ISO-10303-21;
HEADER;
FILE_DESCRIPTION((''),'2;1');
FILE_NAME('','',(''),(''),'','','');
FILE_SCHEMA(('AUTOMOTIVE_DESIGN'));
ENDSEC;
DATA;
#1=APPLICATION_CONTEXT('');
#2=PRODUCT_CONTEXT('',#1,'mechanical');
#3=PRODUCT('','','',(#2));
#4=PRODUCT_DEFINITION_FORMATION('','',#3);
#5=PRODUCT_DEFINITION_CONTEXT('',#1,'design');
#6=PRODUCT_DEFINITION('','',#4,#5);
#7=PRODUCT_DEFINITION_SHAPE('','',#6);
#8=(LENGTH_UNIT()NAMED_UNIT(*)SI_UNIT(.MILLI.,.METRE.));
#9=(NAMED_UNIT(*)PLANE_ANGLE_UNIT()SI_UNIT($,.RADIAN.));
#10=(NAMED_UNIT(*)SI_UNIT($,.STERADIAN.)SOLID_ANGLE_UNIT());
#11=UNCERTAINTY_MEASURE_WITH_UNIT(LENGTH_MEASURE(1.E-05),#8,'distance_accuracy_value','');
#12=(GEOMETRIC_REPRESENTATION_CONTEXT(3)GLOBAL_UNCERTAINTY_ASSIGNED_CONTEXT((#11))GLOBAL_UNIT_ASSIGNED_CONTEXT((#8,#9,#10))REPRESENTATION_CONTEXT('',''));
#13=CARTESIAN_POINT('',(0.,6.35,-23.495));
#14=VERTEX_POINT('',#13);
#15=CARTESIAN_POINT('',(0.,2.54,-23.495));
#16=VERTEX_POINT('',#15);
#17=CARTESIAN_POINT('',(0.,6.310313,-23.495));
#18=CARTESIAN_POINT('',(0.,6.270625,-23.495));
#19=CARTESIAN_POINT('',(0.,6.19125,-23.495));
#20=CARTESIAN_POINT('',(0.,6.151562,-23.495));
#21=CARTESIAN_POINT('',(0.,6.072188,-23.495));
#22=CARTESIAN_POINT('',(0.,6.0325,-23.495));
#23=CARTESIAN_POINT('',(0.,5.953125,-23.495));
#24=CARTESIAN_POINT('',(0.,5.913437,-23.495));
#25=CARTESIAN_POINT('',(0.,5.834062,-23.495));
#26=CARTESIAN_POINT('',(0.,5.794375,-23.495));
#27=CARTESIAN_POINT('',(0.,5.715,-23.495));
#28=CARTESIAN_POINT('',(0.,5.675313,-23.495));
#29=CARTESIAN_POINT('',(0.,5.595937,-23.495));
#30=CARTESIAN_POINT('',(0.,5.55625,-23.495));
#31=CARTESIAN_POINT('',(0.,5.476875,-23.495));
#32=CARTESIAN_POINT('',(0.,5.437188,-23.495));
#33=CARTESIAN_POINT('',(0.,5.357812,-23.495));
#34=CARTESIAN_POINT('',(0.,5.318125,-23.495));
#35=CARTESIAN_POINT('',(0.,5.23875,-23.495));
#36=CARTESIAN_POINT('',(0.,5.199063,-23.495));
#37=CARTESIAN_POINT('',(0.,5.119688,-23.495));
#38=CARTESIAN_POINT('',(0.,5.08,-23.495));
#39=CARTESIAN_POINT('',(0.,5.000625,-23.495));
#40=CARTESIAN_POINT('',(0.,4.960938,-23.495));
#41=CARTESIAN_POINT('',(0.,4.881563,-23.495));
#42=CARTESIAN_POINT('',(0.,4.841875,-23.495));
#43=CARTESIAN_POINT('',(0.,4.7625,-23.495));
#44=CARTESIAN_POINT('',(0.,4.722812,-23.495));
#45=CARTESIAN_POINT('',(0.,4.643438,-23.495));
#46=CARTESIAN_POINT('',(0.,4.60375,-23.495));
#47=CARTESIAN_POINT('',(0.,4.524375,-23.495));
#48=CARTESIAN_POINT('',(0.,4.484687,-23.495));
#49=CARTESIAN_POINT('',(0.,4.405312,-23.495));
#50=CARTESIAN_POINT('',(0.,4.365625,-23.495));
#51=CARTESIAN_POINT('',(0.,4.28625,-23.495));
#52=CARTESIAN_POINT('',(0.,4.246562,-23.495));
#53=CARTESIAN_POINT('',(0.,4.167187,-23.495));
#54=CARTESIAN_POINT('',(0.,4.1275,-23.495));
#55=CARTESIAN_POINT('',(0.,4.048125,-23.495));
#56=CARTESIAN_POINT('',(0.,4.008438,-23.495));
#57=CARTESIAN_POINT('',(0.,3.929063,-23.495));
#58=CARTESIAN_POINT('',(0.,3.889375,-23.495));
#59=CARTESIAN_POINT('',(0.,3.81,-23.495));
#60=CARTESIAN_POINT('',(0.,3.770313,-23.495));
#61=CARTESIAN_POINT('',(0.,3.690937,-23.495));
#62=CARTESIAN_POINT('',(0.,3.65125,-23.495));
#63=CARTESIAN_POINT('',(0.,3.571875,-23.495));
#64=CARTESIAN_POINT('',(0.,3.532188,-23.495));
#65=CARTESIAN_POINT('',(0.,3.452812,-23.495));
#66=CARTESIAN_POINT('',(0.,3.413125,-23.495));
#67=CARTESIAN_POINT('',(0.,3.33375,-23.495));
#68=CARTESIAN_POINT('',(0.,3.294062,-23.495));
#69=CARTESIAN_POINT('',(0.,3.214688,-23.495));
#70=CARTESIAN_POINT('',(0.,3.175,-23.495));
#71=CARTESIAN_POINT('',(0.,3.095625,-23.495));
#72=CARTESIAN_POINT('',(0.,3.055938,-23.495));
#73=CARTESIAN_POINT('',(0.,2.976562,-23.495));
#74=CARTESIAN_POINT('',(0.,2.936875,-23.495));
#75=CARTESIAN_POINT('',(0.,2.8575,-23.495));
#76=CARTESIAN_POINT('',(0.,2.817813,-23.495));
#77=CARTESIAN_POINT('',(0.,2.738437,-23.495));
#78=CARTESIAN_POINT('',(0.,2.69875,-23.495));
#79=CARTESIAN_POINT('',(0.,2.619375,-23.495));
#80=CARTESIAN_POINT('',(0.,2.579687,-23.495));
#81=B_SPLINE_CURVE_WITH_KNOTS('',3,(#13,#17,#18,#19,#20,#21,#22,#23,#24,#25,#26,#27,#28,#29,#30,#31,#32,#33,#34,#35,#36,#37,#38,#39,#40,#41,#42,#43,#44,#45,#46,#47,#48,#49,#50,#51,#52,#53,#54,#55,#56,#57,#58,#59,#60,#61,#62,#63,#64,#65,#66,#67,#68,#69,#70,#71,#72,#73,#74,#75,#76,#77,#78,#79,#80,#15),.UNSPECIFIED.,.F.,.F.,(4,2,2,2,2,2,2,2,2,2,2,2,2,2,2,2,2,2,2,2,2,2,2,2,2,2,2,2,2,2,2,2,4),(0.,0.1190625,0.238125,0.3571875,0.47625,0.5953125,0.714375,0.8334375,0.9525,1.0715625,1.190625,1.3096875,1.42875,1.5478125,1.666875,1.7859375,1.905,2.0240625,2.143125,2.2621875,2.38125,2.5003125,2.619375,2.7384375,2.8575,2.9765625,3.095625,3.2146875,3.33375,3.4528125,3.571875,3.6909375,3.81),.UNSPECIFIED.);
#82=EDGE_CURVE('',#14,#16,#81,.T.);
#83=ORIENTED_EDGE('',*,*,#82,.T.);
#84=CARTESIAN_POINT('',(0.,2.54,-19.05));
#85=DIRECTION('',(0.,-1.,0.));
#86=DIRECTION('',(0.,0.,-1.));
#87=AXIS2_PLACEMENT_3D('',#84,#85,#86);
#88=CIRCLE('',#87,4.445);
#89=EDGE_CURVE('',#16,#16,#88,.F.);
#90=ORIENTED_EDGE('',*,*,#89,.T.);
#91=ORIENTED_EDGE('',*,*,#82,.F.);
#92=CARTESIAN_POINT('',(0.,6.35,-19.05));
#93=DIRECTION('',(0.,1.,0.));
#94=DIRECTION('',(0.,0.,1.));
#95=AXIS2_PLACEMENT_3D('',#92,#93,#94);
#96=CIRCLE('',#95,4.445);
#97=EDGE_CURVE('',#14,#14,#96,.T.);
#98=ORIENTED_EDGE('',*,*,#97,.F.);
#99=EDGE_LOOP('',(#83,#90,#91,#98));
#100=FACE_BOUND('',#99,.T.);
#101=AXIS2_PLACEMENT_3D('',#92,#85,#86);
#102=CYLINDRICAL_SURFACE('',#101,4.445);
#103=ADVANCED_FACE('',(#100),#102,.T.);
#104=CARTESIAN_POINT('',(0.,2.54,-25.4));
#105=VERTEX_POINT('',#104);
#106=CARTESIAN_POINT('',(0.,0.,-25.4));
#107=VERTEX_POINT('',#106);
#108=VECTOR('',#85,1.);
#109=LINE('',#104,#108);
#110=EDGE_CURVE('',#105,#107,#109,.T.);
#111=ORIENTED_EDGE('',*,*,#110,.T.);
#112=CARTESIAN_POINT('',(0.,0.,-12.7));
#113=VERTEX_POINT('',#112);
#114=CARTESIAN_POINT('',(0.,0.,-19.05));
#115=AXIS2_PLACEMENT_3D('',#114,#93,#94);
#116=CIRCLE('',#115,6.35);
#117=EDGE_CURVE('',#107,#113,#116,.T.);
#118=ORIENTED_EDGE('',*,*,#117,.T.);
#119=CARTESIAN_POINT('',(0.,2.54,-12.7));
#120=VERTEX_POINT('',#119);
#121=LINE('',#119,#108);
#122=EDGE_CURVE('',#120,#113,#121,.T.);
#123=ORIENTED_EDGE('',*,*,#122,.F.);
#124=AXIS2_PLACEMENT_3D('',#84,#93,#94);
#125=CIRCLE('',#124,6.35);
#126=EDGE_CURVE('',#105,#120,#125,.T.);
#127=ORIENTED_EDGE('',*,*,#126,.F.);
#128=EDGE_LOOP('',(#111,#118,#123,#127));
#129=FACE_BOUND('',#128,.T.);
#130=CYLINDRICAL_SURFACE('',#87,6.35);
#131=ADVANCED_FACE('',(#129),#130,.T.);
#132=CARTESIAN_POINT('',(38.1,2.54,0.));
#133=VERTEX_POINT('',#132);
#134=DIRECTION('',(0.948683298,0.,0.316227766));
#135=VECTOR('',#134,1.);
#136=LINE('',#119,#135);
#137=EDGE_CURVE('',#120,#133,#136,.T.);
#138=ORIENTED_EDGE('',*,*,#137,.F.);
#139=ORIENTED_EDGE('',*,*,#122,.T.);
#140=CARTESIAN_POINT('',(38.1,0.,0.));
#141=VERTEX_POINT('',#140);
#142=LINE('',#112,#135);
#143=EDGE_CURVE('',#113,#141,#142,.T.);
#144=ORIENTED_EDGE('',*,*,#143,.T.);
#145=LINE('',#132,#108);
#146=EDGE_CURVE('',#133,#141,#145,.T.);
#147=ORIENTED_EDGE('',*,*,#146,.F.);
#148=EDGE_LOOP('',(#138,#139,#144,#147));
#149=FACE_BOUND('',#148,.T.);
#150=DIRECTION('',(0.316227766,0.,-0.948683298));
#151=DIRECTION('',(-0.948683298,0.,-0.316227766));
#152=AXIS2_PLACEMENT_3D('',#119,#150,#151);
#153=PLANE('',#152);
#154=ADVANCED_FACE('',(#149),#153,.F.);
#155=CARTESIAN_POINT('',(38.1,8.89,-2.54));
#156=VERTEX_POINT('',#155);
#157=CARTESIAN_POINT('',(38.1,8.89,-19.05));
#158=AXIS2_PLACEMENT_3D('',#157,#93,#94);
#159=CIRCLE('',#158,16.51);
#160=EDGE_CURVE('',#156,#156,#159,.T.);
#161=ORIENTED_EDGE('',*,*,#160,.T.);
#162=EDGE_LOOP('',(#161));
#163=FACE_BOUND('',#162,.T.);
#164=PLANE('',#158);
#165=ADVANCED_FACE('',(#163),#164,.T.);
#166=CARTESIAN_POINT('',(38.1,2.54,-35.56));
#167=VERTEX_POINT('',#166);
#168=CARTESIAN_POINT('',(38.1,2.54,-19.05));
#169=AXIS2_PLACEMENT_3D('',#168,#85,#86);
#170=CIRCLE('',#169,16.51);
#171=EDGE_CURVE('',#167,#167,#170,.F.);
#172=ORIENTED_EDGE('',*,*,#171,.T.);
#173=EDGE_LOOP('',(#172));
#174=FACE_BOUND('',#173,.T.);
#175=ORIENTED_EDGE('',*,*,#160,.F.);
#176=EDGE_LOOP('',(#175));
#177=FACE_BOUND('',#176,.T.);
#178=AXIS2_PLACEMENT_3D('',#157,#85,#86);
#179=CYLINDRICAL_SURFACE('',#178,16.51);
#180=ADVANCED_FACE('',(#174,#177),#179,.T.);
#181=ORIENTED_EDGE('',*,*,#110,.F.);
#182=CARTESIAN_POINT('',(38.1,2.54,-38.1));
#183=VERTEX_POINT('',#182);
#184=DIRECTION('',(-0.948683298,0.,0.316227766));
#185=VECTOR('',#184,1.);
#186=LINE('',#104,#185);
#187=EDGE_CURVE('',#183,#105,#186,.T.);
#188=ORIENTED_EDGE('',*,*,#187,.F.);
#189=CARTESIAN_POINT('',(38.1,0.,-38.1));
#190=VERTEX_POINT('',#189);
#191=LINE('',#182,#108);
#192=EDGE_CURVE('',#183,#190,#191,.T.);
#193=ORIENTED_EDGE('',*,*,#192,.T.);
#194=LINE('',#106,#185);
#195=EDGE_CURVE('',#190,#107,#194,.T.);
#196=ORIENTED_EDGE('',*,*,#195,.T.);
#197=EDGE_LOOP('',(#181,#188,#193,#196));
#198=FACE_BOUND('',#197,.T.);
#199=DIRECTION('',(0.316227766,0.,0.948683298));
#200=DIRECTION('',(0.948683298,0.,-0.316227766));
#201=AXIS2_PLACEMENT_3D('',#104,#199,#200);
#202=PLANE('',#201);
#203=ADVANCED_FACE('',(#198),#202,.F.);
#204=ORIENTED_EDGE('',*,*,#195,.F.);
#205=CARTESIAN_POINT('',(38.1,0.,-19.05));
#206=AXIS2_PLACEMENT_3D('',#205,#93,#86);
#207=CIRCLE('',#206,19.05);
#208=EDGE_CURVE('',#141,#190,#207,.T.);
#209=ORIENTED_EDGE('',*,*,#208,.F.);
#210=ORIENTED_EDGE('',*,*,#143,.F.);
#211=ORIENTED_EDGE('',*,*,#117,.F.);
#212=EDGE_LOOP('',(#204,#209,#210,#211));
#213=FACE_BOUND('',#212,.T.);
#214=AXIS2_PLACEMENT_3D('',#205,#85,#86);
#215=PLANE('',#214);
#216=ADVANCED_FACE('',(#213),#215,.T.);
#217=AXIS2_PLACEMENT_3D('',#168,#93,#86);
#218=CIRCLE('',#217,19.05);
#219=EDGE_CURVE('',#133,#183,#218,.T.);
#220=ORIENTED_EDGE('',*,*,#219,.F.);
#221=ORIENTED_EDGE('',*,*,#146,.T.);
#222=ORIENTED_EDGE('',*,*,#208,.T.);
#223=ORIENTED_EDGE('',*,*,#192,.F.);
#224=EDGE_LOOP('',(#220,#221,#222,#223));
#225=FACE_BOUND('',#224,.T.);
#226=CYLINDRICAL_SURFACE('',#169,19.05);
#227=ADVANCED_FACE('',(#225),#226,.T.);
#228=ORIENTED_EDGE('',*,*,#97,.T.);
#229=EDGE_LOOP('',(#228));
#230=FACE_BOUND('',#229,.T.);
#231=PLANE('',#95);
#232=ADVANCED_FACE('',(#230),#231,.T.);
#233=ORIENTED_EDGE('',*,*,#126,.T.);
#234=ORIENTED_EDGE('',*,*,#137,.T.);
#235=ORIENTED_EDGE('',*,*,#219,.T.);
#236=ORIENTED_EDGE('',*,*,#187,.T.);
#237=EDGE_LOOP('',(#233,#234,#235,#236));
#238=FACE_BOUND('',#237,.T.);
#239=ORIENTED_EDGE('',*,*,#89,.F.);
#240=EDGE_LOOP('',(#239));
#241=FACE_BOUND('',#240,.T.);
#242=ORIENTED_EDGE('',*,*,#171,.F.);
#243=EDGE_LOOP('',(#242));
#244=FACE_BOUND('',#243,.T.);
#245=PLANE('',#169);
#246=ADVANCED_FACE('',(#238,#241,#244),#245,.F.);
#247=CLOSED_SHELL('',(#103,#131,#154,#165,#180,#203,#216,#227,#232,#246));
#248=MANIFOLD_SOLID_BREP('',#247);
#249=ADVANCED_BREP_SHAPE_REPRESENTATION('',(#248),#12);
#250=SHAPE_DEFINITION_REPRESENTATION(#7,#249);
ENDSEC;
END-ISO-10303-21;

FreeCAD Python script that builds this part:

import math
import FreeCAD as App
import Part
import Sketcher
Q = App.Units.Quantity

doc = App.newDocument("Part")
body = doc.addObject("PartDesign::Body", "Body")

sketch1 = body.newObject("Sketcher::SketchObject", "Sketch")
sketch1.AttachmentSupport = (doc.getObject("XZ_Plane"), [""])
sketch1.MapMode = "FlatFace"
sketch1.addGeometry([
    Part.LineSegment(App.Vector(38, -38, 0), App.Vector(0, -25, 0)),
    Part.ArcOfCircle(Part.Circle(App.Vector(0, -19, 0), App.Vector(0, 0, 1), 6), math.radians(90), math.radians(270)),
    Part.LineSegment(App.Vector(0, -13, 0), App.Vector(38, 0, 0)),
    Part.ArcOfCircle(Part.Circle(App.Vector(38, -19, 0), App.Vector(0, 0, 1), 19), math.radians(-90), math.radians(90)),
], False)
sketch1.addConstraint([
    Sketcher.Constraint("Coincident", 0, 2, 1, 2),
    Sketcher.Constraint("Coincident", 1, 1, 2, 1),
    Sketcher.Constraint("Coincident", 2, 2, 3, 2),
    Sketcher.Constraint("Coincident", 3, 1, 0, 1),
    Sketcher.Constraint("PointOnObject", 1, 3, -2),
    Sketcher.Constraint("PointOnObject", 0, 2, -2),
    Sketcher.Constraint("PointOnObject", 1, 1, -2),
    Sketcher.Constraint("PointOnObject", 2, 2, -1),
    Sketcher.Constraint("Horizontal", 1, 3, 3, 3),
    Sketcher.Constraint("Vertical", 3, 3, 2, 2),
    Sketcher.Constraint("Vertical", 2, 2, 3, 1),
    Sketcher.Constraint("Radius", 1, Q("0.25 in")),
    Sketcher.Constraint("Radius", 3, Q("0.75 in")),
    Sketcher.Constraint("DistanceX", -1, 1, 3, 3, Q("1.5 in")),
])
pad1 = body.newObject("PartDesign::Pad", "Pad")
pad1.Profile = sketch1
pad1.Length = Q("0.1 in")
pad1.Reversed = True

sketch2 = body.newObject("Sketcher::SketchObject", "Sketch001")
sketch2.AttachmentSupport = (doc.getObject("XZ_Plane"), [""])
sketch2.MapMode = "FlatFace"
sketch2.AttachmentOffset = App.Placement(App.Vector(0, 0, -0.1 * 25.4), App.Rotation())
sketch2.addGeometry(Part.Circle(App.Vector(38, -19, 0), App.Vector(0, 0, 1), 17), False)
sketch2.addConstraint([
    Sketcher.Constraint("Diameter", 0, Q("1.3 in")),
    Sketcher.Constraint("DistanceX", -1, 1, 0, 3, Q("1.5 in")),
    Sketcher.Constraint("DistanceY", 0, 3, -1, 1, Q("0.75 in")),
])
pad2 = body.newObject("PartDesign::Pad", "Pad001")
pad2.Profile = sketch2
pad2.Length = Q("0.25 in")
pad2.Reversed = True

sketch3 = body.newObject("Sketcher::SketchObject", "Sketch002")
sketch3.AttachmentSupport = (doc.getObject("XZ_Plane"), [""])
sketch3.MapMode = "FlatFace"
sketch3.AttachmentOffset = App.Placement(App.Vector(0, 0, -0.1 * 25.4), App.Rotation())
sketch3.addGeometry(Part.Circle(App.Vector(0, -19.1, 0), App.Vector(0, 0, 1), 4.4), False)
sketch3.addConstraint([
    Sketcher.Constraint("PointOnObject", 0, 3, -2),
    Sketcher.Constraint("Diameter", 0, Q("0.35 in")),
    Sketcher.Constraint("DistanceY", 0, 3, -1, 1, Q("0.75 in")),
])
pad3 = body.newObject("PartDesign::Pad", "Pad002")
pad3.Profile = sketch3
pad3.Length = Q("0.15 in")
pad3.Reversed = True

doc.recompute()
